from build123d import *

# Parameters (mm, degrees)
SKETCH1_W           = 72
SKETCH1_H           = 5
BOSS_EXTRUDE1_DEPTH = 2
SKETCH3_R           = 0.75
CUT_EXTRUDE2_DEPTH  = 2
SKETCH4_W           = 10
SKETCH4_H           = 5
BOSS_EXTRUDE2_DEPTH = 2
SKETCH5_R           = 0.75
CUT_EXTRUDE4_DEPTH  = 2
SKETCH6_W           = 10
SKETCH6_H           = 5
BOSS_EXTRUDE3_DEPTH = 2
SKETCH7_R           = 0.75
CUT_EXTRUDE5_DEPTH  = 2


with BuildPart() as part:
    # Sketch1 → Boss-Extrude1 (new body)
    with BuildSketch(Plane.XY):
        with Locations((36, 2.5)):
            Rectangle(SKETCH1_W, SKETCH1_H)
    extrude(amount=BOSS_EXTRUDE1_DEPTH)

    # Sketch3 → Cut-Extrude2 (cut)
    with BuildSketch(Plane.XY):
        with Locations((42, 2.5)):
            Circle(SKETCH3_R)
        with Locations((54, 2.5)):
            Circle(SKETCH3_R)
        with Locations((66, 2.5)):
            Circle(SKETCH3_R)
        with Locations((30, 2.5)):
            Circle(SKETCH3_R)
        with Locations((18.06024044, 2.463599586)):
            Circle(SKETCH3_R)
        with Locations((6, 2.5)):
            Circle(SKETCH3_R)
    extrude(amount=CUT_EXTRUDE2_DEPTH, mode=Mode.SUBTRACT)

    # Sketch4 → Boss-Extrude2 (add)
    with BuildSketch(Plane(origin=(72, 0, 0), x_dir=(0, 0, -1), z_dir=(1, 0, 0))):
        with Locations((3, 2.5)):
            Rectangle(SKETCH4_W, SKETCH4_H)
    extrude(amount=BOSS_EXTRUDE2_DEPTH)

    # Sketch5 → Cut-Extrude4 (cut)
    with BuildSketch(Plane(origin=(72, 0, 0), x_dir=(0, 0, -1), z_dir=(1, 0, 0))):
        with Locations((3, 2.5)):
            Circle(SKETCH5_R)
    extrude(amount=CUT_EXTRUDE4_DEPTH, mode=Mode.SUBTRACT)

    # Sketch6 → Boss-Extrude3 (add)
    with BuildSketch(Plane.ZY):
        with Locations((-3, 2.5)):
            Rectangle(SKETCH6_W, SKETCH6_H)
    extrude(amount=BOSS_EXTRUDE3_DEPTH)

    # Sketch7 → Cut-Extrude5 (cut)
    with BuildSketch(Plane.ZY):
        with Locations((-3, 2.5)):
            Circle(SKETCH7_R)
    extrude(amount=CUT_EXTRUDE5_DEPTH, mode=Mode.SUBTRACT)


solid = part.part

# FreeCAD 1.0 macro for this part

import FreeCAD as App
import Part
import Sketcher

V = App.Vector

doc = App.newDocument("Part")
body = doc.addObject("PartDesign::Body", "Body")

sketch1 = body.newObject("Sketcher::SketchObject", "Sketch")
sketch1.AttachmentSupport = (doc.getObject("XY_Plane"), [""])
sketch1.MapMode = "FlatFace"
sketch1.addGeometry(Part.LineSegment(V(0, 5, 0), V(0, 0, 0)), False)
sketch1.addGeometry(Part.LineSegment(V(0, 0, 0), V(72, 0, 0)), False)
sketch1.addGeometry(Part.LineSegment(V(72, 0, 0), V(72, 5, 0)), False)
sketch1.addGeometry(Part.LineSegment(V(72, 5, 0), V(0, 5, 0)), False)
sketch1.addConstraint(Sketcher.Constraint("Coincident", 0, 2, 1, 1))
sketch1.addConstraint(Sketcher.Constraint("Coincident", 1, 2, 2, 1))
sketch1.addConstraint(Sketcher.Constraint("Coincident", 2, 2, 3, 1))
sketch1.addConstraint(Sketcher.Constraint("Coincident", 3, 2, 0, 1))
sketch1.addConstraint(Sketcher.Constraint("Vertical", 0))
sketch1.addConstraint(Sketcher.Constraint("Horizontal", 1))
sketch1.addConstraint(Sketcher.Constraint("Vertical", 2))
sketch1.addConstraint(Sketcher.Constraint("Horizontal", 3))
sketch1.addConstraint(Sketcher.Constraint("Coincident", 0, 2, -1, 1))
sketch1.addConstraint(Sketcher.Constraint("DistanceX", 1, 1, 1, 2, 72.0))
sketch1.addConstraint(Sketcher.Constraint("DistanceY", 0, 2, 0, 1, 5.0))
pad1 = body.newObject("PartDesign::Pad", "Pad")
pad1.Profile = sketch1
pad1.Length = 2

sketch2 = body.newObject("Sketcher::SketchObject", "Sketch001")
sketch2.AttachmentSupport = (doc.getObject("XY_Plane"), [""])
sketch2.MapMode = "FlatFace"
sketch2.addGeometry(Part.Circle(V(42, 2.5, 0), V(0, 0, 1), 0.8), False)
sketch2.addGeometry(Part.Circle(V(54, 2.5, 0), V(0, 0, 1), 0.8), False)
sketch2.addGeometry(Part.Circle(V(66, 2.5, 0), V(0, 0, 1), 0.8), False)
sketch2.addGeometry(Part.Circle(V(30, 2.5, 0), V(0, 0, 1), 0.8), False)
sketch2.addGeometry(Part.Circle(V(18.1, 2.5, 0), V(0, 0, 1), 0.8), False)
sketch2.addGeometry(Part.Circle(V(6, 2.5, 0), V(0, 0, 1), 0.8), False)
sketch2.addConstraint(Sketcher.Constraint("Equal", 0, 1))
sketch2.addConstraint(Sketcher.Constraint("Equal", 1, 2))
sketch2.addConstraint(Sketcher.Constraint("Equal", 2, 3))
sketch2.addConstraint(Sketcher.Constraint("Equal", 3, 4))
sketch2.addConstraint(Sketcher.Constraint("Equal", 4, 5))
sketch2.addConstraint(Sketcher.Constraint("Horizontal", 0, 3, 1, 3))
sketch2.addConstraint(Sketcher.Constraint("Horizontal", 1, 3, 2, 3))
sketch2.addConstraint(Sketcher.Constraint("Horizontal", 2, 3, 3, 3))
sketch2.addConstraint(Sketcher.Constraint("Horizontal", 3, 3, 5, 3))
sketch2.addConstraint(Sketcher.Constraint("Diameter", 0, 1.5))
sketch2.addConstraint(Sketcher.Constraint("DistanceX", -1, 1, 0, 3, 42.0))
sketch2.addConstraint(Sketcher.Constraint("DistanceX", -1, 1, 1, 3, 54.0))
sketch2.addConstraint(Sketcher.Constraint("DistanceX", -1, 1, 2, 3, 66.0))
sketch2.addConstraint(Sketcher.Constraint("DistanceX", -1, 1, 3, 3, 30.0))
sketch2.addConstraint(Sketcher.Constraint("DistanceX", -1, 1, 5, 3, 6.0))
sketch2.addConstraint(Sketcher.Constraint("DistanceY", -1, 1, 0, 3, 2.5))
sketch2.addConstraint(Sketcher.Constraint("DistanceY", -1, 1, 4, 3, 2.4636))
sketch2.addConstraint(Sketcher.Constraint("DistanceX", -1, 1, 4, 3, 18.06024))
pocket1 = body.newObject("PartDesign::Pocket", "Pocket")
pocket1.Profile = sketch2
pocket1.Length = 2
pocket1.Reversed = True

sketch3 = body.newObject("Sketcher::SketchObject", "Sketch002")
sketch3.AttachmentSupport = (doc.getObject("YZ_Plane"), [""])
sketch3.MapMode = "FlatFace"
sketch3.AttachmentOffset = App.Placement(V(0, 0, 72), App.Rotation())
sketch3.addGeometry(Part.LineSegment(V(5, 2, 0), V(0, 2, 0)), False)
sketch3.addGeometry(Part.LineSegment(V(0, 2, 0), V(0, -8, 0)), False)
sketch3.addGeometry(Part.LineSegment(V(0, -8, 0), V(5, -8, 0)), False)
sketch3.addGeometry(Part.LineSegment(V(5, -8, 0), V(5, 2, 0)), False)
sketch3.addConstraint(Sketcher.Constraint("Coincident", 0, 2, 1, 1))
sketch3.addConstraint(Sketcher.Constraint("Coincident", 1, 2, 2, 1))
sketch3.addConstraint(Sketcher.Constraint("Coincident", 2, 2, 3, 1))
sketch3.addConstraint(Sketcher.Constraint("Coincident", 3, 2, 0, 1))
sketch3.addConstraint(Sketcher.Constraint("Horizontal", 0))
sketch3.addConstraint(Sketcher.Constraint("Vertical", 1))
sketch3.addConstraint(Sketcher.Constraint("Horizontal", 2))
sketch3.addConstraint(Sketcher.Constraint("Vertical", 3))
sketch3.addConstraint(Sketcher.Constraint("PointOnObject", 0, 2, -2))
sketch3.addConstraint(Sketcher.Constraint("DistanceX", 0, 2, 0, 1, 5.0))
sketch3.addConstraint(Sketcher.Constraint("DistanceY", 1, 2, 1, 1, 10.0))
sketch3.addConstraint(Sketcher.Constraint("DistanceY", -1, 1, 0, 2, 2.0))
pad2 = body.newObject("PartDesign::Pad", "Pad001")
pad2.Profile = sketch3
pad2.Length = 2

sketch4 = body.newObject("Sketcher::SketchObject", "Sketch003")
sketch4.AttachmentSupport = (doc.getObject("YZ_Plane"), [""])
sketch4.MapMode = "FlatFace"
sketch4.AttachmentOffset = App.Placement(V(0, 0, 72), App.Rotation())
sketch4.addGeometry(Part.Circle(V(2.5, -3, 0), V(0, 0, 1), 0.8), False)
sketch4.addConstraint(Sketcher.Constraint("Diameter", 0, 1.5))
sketch4.addConstraint(Sketcher.Constraint("DistanceY", 0, 3, -1, 1, 3.0))
sketch4.addConstraint(Sketcher.Constraint("DistanceX", -1, 1, 0, 3, 2.5))
pocket2 = body.newObject("PartDesign::Pocket", "Pocket001")
pocket2.Profile = sketch4
pocket2.Length = 2
pocket2.Reversed = True

sketch5 = body.newObject("Sketcher::SketchObject", "Sketch004")
sketch5.AttachmentSupport = (doc.getObject("YZ_Plane"), [""])
sketch5.MapMode = "FlatFace"
sketch5.addGeometry(Part.LineSegment(V(5, -8, 0), V(0, -8, 0)), False)
sketch5.addGeometry(Part.LineSegment(V(0, -8, 0), V(0, 2, 0)), False)
sketch5.addGeometry(Part.LineSegment(V(0, 2, 0), V(5, 2, 0)), False)
sketch5.addGeometry(Part.LineSegment(V(5, 2, 0), V(5, -8, 0)), False)
sketch5.addConstraint(Sketcher.Constraint("Coincident", 0, 2, 1, 1))
sketch5.addConstraint(Sketcher.Constraint("Coincident", 1, 2, 2, 1))
sketch5.addConstraint(Sketcher.Constraint("Coincident", 2, 2, 3, 1))
sketch5.addConstraint(Sketcher.Constraint("Coincident", 3, 2, 0, 1))
sketch5.addConstraint(Sketcher.Constraint("Horizontal", 0))
sketch5.addConstraint(Sketcher.Constraint("Vertical", 1))
sketch5.addConstraint(Sketcher.Constraint("Horizontal", 2))
sketch5.addConstraint(Sketcher.Constraint("Vertical", 3))
sketch5.addConstraint(Sketcher.Constraint("PointOnObject", 0, 2, -2))
sketch5.addConstraint(Sketcher.Constraint("DistanceX", 0, 2, 0, 1, 5.0))
sketch5.addConstraint(Sketcher.Constraint("DistanceY", 1, 1, 1, 2, 10.0))
sketch5.addConstraint(Sketcher.Constraint("DistanceY", 0, 2, -1, 1, 8.0))
pad3 = body.newObject("PartDesign::Pad", "Pad002")
pad3.Profile = sketch5
pad3.Length = 2
pad3.Reversed = True

sketch6 = body.newObject("Sketcher::SketchObject", "Sketch005")
sketch6.AttachmentSupport = (doc.getObject("YZ_Plane"), [""])
sketch6.MapMode = "FlatFace"
sketch6.addGeometry(Part.Circle(V(2.5, -3, 0), V(0, 0, 1), 0.8), False)
sketch6.addConstraint(Sketcher.Constraint("Diameter", 0, 1.5))
sketch6.addConstraint(Sketcher.Constraint("DistanceY", 0, 3, -1, 1, 3.0))
sketch6.addConstraint(Sketcher.Constraint("DistanceX", -1, 1, 0, 3, 2.5))
pocket3 = body.newObject("PartDesign::Pocket", "Pocket002")
pocket3.Profile = sketch6
pocket3.Length = 2

doc.recompute()
